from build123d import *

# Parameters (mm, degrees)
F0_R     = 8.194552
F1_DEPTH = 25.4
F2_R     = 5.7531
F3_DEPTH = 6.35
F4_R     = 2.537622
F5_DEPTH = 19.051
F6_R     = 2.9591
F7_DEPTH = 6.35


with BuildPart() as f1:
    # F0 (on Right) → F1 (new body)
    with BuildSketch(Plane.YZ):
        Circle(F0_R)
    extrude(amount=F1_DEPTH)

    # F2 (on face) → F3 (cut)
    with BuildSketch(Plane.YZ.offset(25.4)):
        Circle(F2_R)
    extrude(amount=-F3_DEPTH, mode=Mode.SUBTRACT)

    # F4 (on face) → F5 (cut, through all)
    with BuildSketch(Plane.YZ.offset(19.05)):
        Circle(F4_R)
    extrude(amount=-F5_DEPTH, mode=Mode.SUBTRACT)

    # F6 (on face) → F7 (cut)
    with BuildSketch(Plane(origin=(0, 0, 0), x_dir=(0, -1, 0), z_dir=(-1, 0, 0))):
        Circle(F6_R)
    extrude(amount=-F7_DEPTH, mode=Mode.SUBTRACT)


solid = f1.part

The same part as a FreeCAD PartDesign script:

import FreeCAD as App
import Part
import Sketcher
from FreeCAD import Vector
Q = App.Units.Quantity

doc = App.newDocument("Part")
body = doc.addObject("PartDesign::Body", "Body")

# Sketch on YZ plane
sketch1 = body.newObject("Sketcher::SketchObject", "Sketch")
sketch1.AttachmentSupport = (doc.getObject("YZ_Plane"), [""])
sketch1.MapMode = "FlatFace"
sketch1.addGeometry(Part.Circle(Vector(0, 0, 0), Vector(0, 0, 1), 8.194552), False)
sketch1.addConstraint([
    Sketcher.Constraint("Coincident", 0, 3, -1, 1),
    Sketcher.Constraint("Diameter", 0, Q("16.389104 mm")),
])
pad1 = body.newObject("PartDesign::Pad", "Pad")
pad1.Profile = sketch1
pad1.Length = Q("1 in")

# Sketch on YZ plane
sketch2 = body.newObject("Sketcher::SketchObject", "Sketch001")
sketch2.AttachmentSupport = (doc.getObject("YZ_Plane"), [""])
sketch2.MapMode = "FlatFace"
sketch2.AttachmentOffset = App.Placement(Vector(0, 0, 1 * 25.4), App.Rotation())
sketch2.addGeometry(Part.Circle(Vector(0, 0, 0), Vector(0, 0, 1), 5.7531), False)
sketch2.addConstraint([
    Sketcher.Constraint("Coincident", 0, 3, -1, 1),
    Sketcher.Constraint("Diameter", 0, Q("0.453 in")),
])
pocket1 = body.newObject("PartDesign::Pocket", "Pocket")
pocket1.Profile = sketch2
pocket1.Length = Q("0.25 in")

# Sketch on YZ plane
sketch3 = body.newObject("Sketcher::SketchObject", "Sketch002")
sketch3.AttachmentSupport = (doc.getObject("YZ_Plane"), [""])
sketch3.MapMode = "FlatFace"
sketch3.AttachmentOffset = App.Placement(Vector(0, 0, 0.75 * 25.4), App.Rotation())
sketch3.addGeometry(Part.Circle(Vector(0, 0, 0), Vector(0, 0, 1), 2.537622), False)
sketch3.addConstraint([
    Sketcher.Constraint("Coincident", 0, 3, -1, 1),
    Sketcher.Constraint("Diameter", 0, Q("5.075244 mm")),
])
pocket2 = body.newObject("PartDesign::Pocket", "Pocket001")
pocket2.Profile = sketch3
pocket2.Type = "ThroughAll"

# Sketch on YZ plane
sketch4 = body.newObject("Sketcher::SketchObject", "Sketch003")
sketch4.AttachmentSupport = (doc.getObject("YZ_Plane"), [""])
sketch4.MapMode = "FlatFace"
sketch4.addGeometry(Part.Circle(Vector(0, 0, 0), Vector(0, 0, 1), 2.9591), False)
sketch4.addConstraint([
    Sketcher.Constraint("Coincident", 0, 3, -1, 1),
    Sketcher.Constraint("Diameter", 0, Q("0.233 in")),
])
pocket3 = body.newObject("PartDesign::Pocket", "Pocket002")
pocket3.Profile = sketch4
pocket3.Length = Q("0.25 in")
pocket3.Reversed = True

doc.recompute()
